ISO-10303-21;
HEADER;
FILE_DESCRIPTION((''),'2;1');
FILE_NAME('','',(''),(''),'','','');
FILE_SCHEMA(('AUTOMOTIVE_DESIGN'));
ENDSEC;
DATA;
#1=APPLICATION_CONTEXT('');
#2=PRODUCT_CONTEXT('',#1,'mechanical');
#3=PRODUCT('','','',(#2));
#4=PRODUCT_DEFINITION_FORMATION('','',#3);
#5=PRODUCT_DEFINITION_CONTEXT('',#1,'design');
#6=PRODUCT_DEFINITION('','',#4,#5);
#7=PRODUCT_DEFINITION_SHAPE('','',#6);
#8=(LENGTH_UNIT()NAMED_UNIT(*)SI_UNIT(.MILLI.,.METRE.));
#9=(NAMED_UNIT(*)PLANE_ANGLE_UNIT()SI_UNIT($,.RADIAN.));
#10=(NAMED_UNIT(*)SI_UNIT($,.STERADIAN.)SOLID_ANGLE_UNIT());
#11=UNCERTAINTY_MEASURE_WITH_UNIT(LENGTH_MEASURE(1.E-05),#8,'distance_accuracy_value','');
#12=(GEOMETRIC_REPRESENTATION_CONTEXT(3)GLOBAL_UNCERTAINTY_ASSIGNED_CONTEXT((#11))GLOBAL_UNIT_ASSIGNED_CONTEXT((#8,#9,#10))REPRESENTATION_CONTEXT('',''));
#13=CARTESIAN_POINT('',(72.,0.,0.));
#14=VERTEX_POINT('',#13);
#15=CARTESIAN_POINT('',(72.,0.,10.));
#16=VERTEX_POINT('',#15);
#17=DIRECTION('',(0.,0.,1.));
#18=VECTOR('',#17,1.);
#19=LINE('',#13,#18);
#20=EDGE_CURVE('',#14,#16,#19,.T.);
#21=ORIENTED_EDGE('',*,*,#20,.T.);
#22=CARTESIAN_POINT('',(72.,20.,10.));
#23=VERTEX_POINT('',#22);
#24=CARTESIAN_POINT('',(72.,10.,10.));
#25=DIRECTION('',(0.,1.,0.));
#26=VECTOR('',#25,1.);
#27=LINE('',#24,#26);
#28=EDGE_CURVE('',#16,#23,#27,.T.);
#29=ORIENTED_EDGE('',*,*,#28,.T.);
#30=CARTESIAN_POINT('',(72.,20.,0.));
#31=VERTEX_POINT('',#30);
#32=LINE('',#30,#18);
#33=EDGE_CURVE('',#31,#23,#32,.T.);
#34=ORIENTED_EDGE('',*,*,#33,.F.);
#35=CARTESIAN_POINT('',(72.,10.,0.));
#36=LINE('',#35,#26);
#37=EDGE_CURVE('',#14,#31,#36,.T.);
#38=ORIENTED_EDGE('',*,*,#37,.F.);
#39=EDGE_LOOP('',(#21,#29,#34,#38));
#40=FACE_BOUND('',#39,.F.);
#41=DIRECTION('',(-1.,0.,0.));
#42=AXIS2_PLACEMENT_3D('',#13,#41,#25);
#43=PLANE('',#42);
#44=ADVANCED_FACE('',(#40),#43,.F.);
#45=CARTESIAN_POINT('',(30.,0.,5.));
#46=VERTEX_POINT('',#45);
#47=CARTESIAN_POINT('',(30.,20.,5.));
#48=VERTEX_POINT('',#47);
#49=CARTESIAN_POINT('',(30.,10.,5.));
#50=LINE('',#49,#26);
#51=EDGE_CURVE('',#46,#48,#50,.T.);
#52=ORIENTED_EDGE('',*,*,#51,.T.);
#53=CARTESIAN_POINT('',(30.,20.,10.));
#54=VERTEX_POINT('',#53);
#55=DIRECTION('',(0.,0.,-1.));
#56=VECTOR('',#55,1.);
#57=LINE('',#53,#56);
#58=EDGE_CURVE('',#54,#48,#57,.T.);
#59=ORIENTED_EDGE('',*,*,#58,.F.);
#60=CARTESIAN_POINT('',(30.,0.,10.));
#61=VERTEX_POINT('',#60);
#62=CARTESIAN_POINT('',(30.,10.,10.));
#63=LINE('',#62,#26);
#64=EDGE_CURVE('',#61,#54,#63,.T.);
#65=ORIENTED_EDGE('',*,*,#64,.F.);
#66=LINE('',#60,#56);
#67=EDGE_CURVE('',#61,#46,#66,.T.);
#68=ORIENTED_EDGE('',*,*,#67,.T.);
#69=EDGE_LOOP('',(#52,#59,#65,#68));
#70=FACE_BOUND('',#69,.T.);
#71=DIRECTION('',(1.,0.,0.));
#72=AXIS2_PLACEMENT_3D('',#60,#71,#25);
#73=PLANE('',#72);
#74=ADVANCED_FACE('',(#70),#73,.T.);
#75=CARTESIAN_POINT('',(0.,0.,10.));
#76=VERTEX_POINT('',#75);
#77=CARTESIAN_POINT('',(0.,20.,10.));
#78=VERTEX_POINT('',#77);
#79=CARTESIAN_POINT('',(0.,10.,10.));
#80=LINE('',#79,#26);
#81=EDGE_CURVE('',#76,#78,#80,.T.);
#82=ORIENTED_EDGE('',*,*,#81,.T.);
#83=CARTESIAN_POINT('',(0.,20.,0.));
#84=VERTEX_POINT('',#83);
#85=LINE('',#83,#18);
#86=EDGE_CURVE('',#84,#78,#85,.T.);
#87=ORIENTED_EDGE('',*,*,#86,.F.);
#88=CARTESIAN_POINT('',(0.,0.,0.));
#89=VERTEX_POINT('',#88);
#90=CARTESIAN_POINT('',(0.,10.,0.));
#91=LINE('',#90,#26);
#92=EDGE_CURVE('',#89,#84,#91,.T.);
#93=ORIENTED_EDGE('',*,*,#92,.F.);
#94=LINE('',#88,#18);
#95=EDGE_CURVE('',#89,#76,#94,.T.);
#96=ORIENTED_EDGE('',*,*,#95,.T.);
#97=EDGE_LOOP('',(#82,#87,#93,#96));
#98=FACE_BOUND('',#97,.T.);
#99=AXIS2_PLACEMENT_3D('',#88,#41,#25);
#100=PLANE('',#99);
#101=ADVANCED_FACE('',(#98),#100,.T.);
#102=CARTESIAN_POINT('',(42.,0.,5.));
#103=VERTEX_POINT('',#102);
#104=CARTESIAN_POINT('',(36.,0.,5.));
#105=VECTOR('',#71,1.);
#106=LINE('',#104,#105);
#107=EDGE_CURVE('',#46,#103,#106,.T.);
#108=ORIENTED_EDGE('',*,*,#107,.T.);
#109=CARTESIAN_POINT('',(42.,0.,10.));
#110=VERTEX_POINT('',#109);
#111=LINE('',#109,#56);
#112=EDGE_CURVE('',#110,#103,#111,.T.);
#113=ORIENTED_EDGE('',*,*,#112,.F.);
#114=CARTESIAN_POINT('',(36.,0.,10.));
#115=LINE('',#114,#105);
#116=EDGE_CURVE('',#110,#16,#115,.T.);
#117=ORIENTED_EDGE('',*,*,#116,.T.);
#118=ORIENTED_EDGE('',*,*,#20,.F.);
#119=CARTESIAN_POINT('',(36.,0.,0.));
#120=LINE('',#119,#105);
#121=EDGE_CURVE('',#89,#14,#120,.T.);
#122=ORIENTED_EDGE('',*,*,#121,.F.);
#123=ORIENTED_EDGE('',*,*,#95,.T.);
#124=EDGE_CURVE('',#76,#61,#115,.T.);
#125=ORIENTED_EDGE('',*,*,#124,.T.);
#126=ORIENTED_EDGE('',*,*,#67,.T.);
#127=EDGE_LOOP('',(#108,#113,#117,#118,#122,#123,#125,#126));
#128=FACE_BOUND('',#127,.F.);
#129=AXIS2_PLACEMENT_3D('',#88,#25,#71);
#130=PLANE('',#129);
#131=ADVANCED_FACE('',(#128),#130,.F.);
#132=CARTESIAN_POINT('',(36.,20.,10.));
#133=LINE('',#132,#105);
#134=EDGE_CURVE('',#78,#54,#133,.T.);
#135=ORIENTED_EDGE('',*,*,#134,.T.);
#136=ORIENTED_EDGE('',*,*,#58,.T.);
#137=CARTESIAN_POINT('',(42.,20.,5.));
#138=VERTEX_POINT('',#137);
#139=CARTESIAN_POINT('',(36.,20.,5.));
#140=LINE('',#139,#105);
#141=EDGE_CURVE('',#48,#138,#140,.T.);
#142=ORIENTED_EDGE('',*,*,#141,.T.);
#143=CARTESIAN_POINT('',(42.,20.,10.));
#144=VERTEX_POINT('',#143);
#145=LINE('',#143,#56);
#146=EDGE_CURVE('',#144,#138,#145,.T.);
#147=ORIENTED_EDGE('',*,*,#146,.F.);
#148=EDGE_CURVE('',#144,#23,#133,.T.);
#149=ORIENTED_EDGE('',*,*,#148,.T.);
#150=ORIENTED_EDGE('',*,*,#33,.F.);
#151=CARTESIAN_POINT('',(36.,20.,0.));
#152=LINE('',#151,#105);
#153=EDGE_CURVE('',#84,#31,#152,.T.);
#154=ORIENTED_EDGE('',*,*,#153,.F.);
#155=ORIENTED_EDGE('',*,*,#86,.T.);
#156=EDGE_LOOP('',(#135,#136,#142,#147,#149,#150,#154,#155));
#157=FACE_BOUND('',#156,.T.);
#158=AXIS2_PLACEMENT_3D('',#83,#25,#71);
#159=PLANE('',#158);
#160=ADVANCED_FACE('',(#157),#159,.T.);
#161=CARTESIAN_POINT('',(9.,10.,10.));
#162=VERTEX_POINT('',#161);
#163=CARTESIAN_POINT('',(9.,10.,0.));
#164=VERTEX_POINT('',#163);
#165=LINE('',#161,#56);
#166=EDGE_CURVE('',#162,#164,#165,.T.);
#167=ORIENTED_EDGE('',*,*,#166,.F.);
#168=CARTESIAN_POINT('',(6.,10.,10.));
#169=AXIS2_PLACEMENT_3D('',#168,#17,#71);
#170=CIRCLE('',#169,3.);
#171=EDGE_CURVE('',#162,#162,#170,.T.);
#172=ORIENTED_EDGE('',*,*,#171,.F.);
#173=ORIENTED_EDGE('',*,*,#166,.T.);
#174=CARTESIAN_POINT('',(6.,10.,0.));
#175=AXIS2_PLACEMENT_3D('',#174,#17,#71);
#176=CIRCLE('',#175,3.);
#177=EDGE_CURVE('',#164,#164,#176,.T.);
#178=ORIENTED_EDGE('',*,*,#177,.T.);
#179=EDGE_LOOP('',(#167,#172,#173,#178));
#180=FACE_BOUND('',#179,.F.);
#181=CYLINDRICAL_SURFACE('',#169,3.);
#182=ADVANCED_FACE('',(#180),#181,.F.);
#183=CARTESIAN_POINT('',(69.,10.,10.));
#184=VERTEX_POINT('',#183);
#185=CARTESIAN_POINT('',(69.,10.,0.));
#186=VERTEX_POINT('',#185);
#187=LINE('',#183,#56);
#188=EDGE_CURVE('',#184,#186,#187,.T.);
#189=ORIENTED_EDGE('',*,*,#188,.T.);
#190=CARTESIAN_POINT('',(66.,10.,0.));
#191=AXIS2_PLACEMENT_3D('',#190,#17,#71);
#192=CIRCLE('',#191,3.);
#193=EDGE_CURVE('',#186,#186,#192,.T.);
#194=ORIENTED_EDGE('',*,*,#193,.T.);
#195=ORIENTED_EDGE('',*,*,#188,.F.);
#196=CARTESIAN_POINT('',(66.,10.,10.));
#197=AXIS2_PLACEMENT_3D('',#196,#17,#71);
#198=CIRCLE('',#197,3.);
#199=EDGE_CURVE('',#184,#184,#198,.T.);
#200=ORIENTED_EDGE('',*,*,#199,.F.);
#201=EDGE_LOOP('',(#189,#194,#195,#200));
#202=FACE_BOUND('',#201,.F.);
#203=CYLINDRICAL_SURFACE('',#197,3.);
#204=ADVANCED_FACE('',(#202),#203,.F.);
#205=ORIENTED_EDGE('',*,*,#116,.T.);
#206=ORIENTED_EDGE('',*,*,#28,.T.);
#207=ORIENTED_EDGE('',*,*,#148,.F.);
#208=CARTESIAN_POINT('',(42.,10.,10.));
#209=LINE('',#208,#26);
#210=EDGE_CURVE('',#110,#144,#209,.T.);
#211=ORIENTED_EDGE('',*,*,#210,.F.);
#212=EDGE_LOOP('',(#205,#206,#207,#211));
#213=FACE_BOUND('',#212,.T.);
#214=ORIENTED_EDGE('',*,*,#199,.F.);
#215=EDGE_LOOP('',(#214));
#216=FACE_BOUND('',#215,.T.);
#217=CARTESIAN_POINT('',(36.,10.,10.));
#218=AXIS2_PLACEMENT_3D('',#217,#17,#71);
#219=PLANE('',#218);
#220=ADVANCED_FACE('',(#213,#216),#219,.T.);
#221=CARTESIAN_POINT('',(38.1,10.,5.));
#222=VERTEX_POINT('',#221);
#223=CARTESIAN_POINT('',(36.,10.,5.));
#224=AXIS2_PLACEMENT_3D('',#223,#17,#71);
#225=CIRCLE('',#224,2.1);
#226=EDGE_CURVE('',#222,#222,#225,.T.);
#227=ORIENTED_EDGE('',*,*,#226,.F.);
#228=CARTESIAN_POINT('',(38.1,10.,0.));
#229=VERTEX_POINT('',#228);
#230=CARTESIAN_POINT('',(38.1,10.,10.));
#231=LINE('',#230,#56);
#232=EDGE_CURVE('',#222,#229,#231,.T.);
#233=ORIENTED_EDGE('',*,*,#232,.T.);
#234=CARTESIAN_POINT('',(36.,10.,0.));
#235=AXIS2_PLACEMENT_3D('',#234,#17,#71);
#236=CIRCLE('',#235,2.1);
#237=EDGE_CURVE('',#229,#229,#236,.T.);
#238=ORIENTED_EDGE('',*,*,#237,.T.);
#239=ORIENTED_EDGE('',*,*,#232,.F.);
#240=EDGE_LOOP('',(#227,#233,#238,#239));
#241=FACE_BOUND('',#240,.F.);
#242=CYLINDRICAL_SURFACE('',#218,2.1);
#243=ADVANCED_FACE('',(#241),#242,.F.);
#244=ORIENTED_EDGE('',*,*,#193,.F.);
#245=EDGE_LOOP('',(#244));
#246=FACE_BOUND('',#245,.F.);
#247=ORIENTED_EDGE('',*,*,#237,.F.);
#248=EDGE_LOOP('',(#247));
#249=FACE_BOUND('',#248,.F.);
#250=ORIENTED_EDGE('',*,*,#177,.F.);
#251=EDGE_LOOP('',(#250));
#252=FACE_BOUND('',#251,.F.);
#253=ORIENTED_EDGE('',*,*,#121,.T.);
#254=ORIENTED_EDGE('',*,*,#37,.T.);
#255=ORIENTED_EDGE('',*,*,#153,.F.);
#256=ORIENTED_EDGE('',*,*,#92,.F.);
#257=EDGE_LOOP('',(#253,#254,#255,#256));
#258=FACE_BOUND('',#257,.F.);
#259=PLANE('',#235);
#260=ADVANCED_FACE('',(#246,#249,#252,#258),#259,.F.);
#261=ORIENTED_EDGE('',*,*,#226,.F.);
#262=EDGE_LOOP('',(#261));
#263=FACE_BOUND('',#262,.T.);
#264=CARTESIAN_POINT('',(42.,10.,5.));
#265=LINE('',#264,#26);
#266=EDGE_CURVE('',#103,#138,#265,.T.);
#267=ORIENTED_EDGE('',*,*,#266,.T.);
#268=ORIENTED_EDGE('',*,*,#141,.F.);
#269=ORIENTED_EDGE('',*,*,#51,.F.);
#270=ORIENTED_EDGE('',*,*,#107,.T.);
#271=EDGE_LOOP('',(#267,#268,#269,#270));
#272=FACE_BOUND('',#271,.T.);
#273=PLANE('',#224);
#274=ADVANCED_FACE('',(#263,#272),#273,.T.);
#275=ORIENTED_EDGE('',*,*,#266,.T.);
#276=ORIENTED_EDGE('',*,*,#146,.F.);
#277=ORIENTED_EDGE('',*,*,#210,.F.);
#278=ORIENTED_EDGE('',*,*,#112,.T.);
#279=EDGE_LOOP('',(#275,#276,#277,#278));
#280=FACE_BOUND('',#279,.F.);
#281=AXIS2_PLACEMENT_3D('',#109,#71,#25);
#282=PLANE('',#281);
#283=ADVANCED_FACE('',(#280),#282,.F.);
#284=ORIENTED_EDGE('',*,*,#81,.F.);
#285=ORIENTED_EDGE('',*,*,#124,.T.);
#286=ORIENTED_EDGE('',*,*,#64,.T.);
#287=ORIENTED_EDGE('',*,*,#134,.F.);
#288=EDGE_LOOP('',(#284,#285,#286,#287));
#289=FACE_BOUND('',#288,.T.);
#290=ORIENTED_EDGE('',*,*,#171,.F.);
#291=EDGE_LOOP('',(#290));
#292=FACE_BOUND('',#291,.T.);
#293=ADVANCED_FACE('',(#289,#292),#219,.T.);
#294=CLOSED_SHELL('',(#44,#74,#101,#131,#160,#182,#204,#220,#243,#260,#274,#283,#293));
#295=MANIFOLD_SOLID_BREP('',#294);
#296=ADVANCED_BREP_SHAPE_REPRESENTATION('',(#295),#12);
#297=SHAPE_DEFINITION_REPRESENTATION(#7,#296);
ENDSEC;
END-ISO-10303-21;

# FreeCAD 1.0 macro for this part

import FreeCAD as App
import Part
import Sketcher

V = App.Vector

doc = App.newDocument("Part")
body = doc.addObject("PartDesign::Body", "Body")

# Sketch on XY plane
sketch1 = body.newObject("Sketcher::SketchObject", "Sketch")
sketch1.AttachmentSupport = (doc.getObject("XY_Plane"), [""])
sketch1.MapMode = "FlatFace"
sketch1.addGeometry(Part.LineSegment(V(0, 20, 0), V(0, 0, 0)), False)
sketch1.addGeometry(Part.LineSegment(V(0, 0, 0), V(72, 0, 0)), False)
sketch1.addGeometry(Part.LineSegment(V(72, 0, 0), V(72, 20, 0)), False)
sketch1.addGeometry(Part.LineSegment(V(72, 20, 0), V(0, 20, 0)), False)
sketch1.addConstraint(Sketcher.Constraint("Coincident", 0, 2, 1, 1))
sketch1.addConstraint(Sketcher.Constraint("Coincident", 1, 2, 2, 1))
sketch1.addConstraint(Sketcher.Constraint("Coincident", 2, 2, 3, 1))
sketch1.addConstraint(Sketcher.Constraint("Coincident", 3, 2, 0, 1))
sketch1.addConstraint(Sketcher.Constraint("Vertical", 0))
sketch1.addConstraint(Sketcher.Constraint("Horizontal", 1))
sketch1.addConstraint(Sketcher.Constraint("Vertical", 2))
sketch1.addConstraint(Sketcher.Constraint("Horizontal", 3))
sketch1.addConstraint(Sketcher.Constraint("Coincident", 0, 2, -1, 1))
sketch1.addConstraint(Sketcher.Constraint("DistanceX", 1, 1, 1, 2, 72.0))
sketch1.addConstraint(Sketcher.Constraint("DistanceY", 0, 2, 0, 1, 20.0))
pad1 = body.newObject("PartDesign::Pad", "Pad")
pad1.Profile = sketch1
pad1.Length = 10

# Sketch on XY plane
sketch2 = body.newObject("Sketcher::SketchObject", "Sketch001")
sketch2.AttachmentSupport = (doc.getObject("XY_Plane"), [""])
sketch2.MapMode = "FlatFace"
sketch2.AttachmentOffset = App.Placement(V(0, 0, 10), App.Rotation())
sketch2.addGeometry(Part.LineSegment(V(30, 20, 0), V(30, 0, 0)), False)
sketch2.addGeometry(Part.LineSegment(V(30, 0, 0), V(42, 0, 0)), False)
sketch2.addGeometry(Part.LineSegment(V(42, 0, 0), V(42, 20, 0)), False)
sketch2.addGeometry(Part.LineSegment(V(42, 20, 0), V(30, 20, 0)), False)
sketch2.addConstraint(Sketcher.Constraint("Coincident", 0, 2, 1, 1))
sketch2.addConstraint(Sketcher.Constraint("Coincident", 1, 2, 2, 1))
sketch2.addConstraint(Sketcher.Constraint("Coincident", 2, 2, 3, 1))
sketch2.addConstraint(Sketcher.Constraint("Coincident", 3, 2, 0, 1))
sketch2.addConstraint(Sketcher.Constraint("Vertical", 0))
sketch2.addConstraint(Sketcher.Constraint("Horizontal", 1))
sketch2.addConstraint(Sketcher.Constraint("Vertical", 2))
sketch2.addConstraint(Sketcher.Constraint("Horizontal", 3))
sketch2.addConstraint(Sketcher.Constraint("PointOnObject", 0, 2, -1))
sketch2.addConstraint(Sketcher.Constraint("DistanceX", 1, 1, 1, 2, 12.0))
sketch2.addConstraint(Sketcher.Constraint("DistanceY", 0, 2, 0, 1, 20.0))
sketch2.addConstraint(Sketcher.Constraint("DistanceX", -1, 1, 0, 2, 30.0))
pocket1 = body.newObject("PartDesign::Pocket", "Pocket")
pocket1.Profile = sketch2
pocket1.Length = 5

# Sketch on XY plane
sketch3 = body.newObject("Sketcher::SketchObject", "Sketch002")
sketch3.AttachmentSupport = (doc.getObject("XY_Plane"), [""])
sketch3.MapMode = "FlatFace"
sketch3.AttachmentOffset = App.Placement(V(0, 0, 10), App.Rotation())
sketch3.addGeometry(Part.Circle(V(6, 10, 0), V(0, 0, 1), 3), False)
sketch3.addGeometry(Part.Circle(V(66, 10, 0), V(0, 0, 1), 3), False)
sketch3.addGeometry(Part.Circle(V(36, 10, 0), V(0, 0, 1), 2.1), False)
sketch3.addConstraint(Sketcher.Constraint("Equal", 0, 1))
sketch3.addConstraint(Sketcher.Constraint("Horizontal", 0, 3, 1, 3))
sketch3.addConstraint(Sketcher.Constraint("Horizontal", 1, 3, 2, 3))
sketch3.addConstraint(Sketcher.Constraint("Diameter", 0, 6.0))
sketch3.addConstraint(Sketcher.Constraint("Diameter", 2, 4.2))
sketch3.addConstraint(Sketcher.Constraint("DistanceX", -1, 1, 0, 3, 6.0))
sketch3.addConstraint(Sketcher.Constraint("DistanceY", -1, 1, 0, 3, 10.0))
sketch3.addConstraint(Sketcher.Constraint("DistanceX", -1, 1, 1, 3, 66.0))
sketch3.addConstraint(Sketcher.Constraint("DistanceX", -1, 1, 2, 3, 36.0))
pocket2 = body.newObject("PartDesign::Pocket", "Pocket001")
pocket2.Profile = sketch3
pocket2.Length = 25

doc.recompute()
